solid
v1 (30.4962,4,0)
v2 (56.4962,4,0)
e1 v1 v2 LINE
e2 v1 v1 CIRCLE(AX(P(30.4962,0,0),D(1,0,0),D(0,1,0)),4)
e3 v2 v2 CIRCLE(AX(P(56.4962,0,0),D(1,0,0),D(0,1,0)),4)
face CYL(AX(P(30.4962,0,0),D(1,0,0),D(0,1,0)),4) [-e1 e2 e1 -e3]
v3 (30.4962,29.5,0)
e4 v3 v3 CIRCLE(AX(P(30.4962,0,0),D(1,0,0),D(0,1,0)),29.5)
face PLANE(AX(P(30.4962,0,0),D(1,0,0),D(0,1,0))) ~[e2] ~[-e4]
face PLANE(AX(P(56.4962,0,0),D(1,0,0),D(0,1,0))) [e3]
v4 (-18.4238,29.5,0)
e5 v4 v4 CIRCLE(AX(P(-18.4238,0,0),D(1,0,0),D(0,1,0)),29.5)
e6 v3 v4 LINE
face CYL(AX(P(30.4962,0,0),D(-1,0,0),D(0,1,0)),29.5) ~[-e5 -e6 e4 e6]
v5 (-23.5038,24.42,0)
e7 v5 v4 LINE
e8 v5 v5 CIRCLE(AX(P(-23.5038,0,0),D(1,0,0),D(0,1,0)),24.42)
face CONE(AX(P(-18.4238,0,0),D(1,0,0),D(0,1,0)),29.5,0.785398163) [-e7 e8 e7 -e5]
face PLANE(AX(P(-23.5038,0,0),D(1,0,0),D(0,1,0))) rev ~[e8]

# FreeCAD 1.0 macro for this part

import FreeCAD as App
import Part
import Sketcher


def edges_at(feature, points):
    """Names of the edges that pass closest to the given points."""
    edges = feature.Shape.Edges
    near = lambda p: min(range(len(edges)), key=lambda i: edges[i].distToShape(Part.Vertex(*p))[0])
    return sorted({f"Edge{near(p) + 1}" for p in points})

doc = App.newDocument("Part")
params = doc.addObject("Spreadsheet::Sheet", "Params")
for row, (alias, value) in enumerate([
    ("sketch1_width", "26 mm"),
    ("sketch1_width2", "54 mm"),
    ("sketch1_height", "4 mm"),
    ("sketch1_height2", "29.5 mm"),
    ("revolution_angle", "360 deg"),
    ("chamfer_size", "5.08 mm"),
], start=1):
    params.set(f"A{row}", alias)
    params.set(f"B{row}", "=" + value)
    params.setAlias(f"B{row}", alias)

body = doc.addObject("PartDesign::Body", "Body")

# Sketch on XY plane
sketch1 = body.newObject("Sketcher::SketchObject", "Sketch")
sketch1.AttachmentSupport = (doc.getObject("XY_Plane"), [""])
sketch1.MapMode = "FlatFace"
sketch1.addGeometry(Part.LineSegment(App.Vector(-23.5, 29.5, 0), App.Vector(-23.5, 0, 0)), False)
sketch1.addGeometry(Part.LineSegment(App.Vector(-23.5, 0, 0), App.Vector(56.5, 0, 0)), False)
sketch1.addGeometry(Part.LineSegment(App.Vector(56.5, 0, 0), App.Vector(56.5, 4, 0)), False)
sketch1.addGeometry(Part.LineSegment(App.Vector(56.5, 4, 0), App.Vector(30.5, 4, 0)), False)
sketch1.addGeometry(Part.LineSegment(App.Vector(30.5, 4, 0), App.Vector(30.5, 29.5, 0)), False)
sketch1.addGeometry(Part.LineSegment(App.Vector(30.5, 29.5, 0), App.Vector(-23.5, 29.5, 0)), False)
sketch1.addConstraint(Sketcher.Constraint("Coincident", 0, 2, 1, 1))
sketch1.addConstraint(Sketcher.Constraint("Coincident", 1, 2, 2, 1))
sketch1.addConstraint(Sketcher.Constraint("Coincident", 2, 2, 3, 1))
sketch1.addConstraint(Sketcher.Constraint("Coincident", 3, 2, 4, 1))
sketch1.addConstraint(Sketcher.Constraint("Coincident", 4, 2, 5, 1))
sketch1.addConstraint(Sketcher.Constraint("Coincident", 5, 2, 0, 1))
sketch1.addConstraint(Sketcher.Constraint("Vertical", 0))
sketch1.addConstraint(Sketcher.Constraint("Horizontal", 1))
sketch1.addConstraint(Sketcher.Constraint("Vertical", 2))
sketch1.addConstraint(Sketcher.Constraint("Horizontal", 3))
sketch1.addConstraint(Sketcher.Constraint("Vertical", 4))
sketch1.addConstraint(Sketcher.Constraint("Horizontal", 5))
sketch1.addConstraint(Sketcher.Constraint("PointOnObject", 0, 2, -1))
sketch1.addConstraint(Sketcher.Constraint("DistanceX", 3, 2, 3, 1, 26.0))
sketch1.addConstraint(Sketcher.Constraint("DistanceX", 5, 2, 5, 1, 54.0))
sketch1.addConstraint(Sketcher.Constraint("DistanceY", 2, 1, 2, 2, 4.0))
sketch1.addConstraint(Sketcher.Constraint("DistanceY", 0, 2, 0, 1, 29.5))
sketch1.addConstraint(Sketcher.Constraint("DistanceX", 0, 2, -1, 1, 23.5038))
sketch1.setExpression("Constraints[13]", "Params.sketch1_width")
sketch1.setExpression("Constraints[14]", "Params.sketch1_width2")
sketch1.setExpression("Constraints[15]", "Params.sketch1_height")
sketch1.setExpression("Constraints[16]", "Params.sketch1_height2")
revolution = body.newObject("PartDesign::Revolution", "Revolution")
revolution.Profile = sketch1
revolution.ReferenceAxis = (sketch1, ["H_Axis"])
revolution.setExpression("Angle", "Params.revolution_angle")
doc.recompute()

chamfer = body.newObject("PartDesign::Chamfer", "Chamfer")
chamfer.Base = (revolution, edges_at(revolution, [(-23.504, -29.5, 0)]))
chamfer.setExpression("Size", "Params.chamfer_size")

doc.recompute()
